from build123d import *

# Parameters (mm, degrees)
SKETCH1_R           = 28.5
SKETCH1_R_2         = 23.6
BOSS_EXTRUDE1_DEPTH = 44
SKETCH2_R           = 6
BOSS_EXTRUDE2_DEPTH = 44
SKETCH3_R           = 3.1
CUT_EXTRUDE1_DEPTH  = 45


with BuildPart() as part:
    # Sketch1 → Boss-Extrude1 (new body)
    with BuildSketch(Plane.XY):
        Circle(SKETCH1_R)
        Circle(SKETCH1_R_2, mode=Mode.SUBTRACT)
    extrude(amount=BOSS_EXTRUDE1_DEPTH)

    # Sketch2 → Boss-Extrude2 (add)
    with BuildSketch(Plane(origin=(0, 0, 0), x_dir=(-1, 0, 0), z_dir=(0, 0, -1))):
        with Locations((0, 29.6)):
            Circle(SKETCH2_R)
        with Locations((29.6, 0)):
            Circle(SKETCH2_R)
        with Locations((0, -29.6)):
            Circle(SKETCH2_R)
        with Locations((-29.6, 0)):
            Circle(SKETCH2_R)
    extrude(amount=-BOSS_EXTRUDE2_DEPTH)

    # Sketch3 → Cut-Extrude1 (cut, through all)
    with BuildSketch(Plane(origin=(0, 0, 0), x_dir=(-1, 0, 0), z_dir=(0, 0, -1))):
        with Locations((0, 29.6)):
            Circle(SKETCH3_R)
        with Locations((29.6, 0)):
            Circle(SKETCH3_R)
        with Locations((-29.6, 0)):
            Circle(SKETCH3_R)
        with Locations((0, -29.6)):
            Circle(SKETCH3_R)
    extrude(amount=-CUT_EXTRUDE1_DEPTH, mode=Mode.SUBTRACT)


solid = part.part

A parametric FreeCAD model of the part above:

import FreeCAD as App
import Part
import Sketcher

V = App.Vector
Q = App.Units.Quantity

doc = App.newDocument("Part")
body = doc.addObject("PartDesign::Body", "Body")

# Sketch on XY plane
sketch1 = body.newObject("Sketcher::SketchObject", "Sketch")
sketch1.AttachmentSupport = (doc.getObject("XY_Plane"), [""])
sketch1.MapMode = "FlatFace"
sketch1.addGeometry([
    Part.Circle(V(0, 0, 0), V(0, 0, 1), 28),
    Part.Circle(V(0, 0, 0), V(0, 0, 1), 24),
], False)
sketch1.addConstraint([
    Sketcher.Constraint("Coincident", 0, 3, -1, 1),
    Sketcher.Constraint("Coincident", 1, 3, -1, 1),
    Sketcher.Constraint("Diameter", 0, Q("57 mm")),
    Sketcher.Constraint("Diameter", 1, Q("47.2 mm")),
])
pad1 = body.newObject("PartDesign::Pad", "Pad")
pad1.Profile = sketch1
pad1.Length = 44

# Sketch on XY plane
sketch2 = body.newObject("Sketcher::SketchObject", "Sketch001")
sketch2.AttachmentSupport = (doc.getObject("XY_Plane"), [""])
sketch2.MapMode = "FlatFace"
sketch2.addGeometry([
    Part.Circle(V(0, 30, 0), V(0, 0, 1), 6),
    Part.Circle(V(-30, 0, 0), V(0, 0, 1), 6),
    Part.Circle(V(0, -30, 0), V(0, 0, 1), 6),
    Part.Circle(V(30, 0, 0), V(0, 0, 1), 6),
], False)
sketch2.addConstraint([
    Sketcher.Constraint("Equal", 0, 1),
    Sketcher.Constraint("Equal", 1, 2),
    Sketcher.Constraint("Equal", 2, 3),
    Sketcher.Constraint("Symmetric", 0, 3, 2, 3, -1, 1),
    Sketcher.Constraint("Symmetric", 1, 3, 3, 3, -1, 1),
    Sketcher.Constraint("PointOnObject", 0, 3, -2),
    Sketcher.Constraint("PointOnObject", 1, 3, -1),
    Sketcher.Constraint("Diameter", 0, Q("12 mm")),
    Sketcher.Constraint("DistanceY", -1, 1, 0, 3, Q("29.6 mm")),
    Sketcher.Constraint("DistanceX", 1, 3, -1, 1, Q("29.6 mm")),
])
pad2 = body.newObject("PartDesign::Pad", "Pad001")
pad2.Profile = sketch2
pad2.Length = 44

# Sketch on XY plane
sketch3 = body.newObject("Sketcher::SketchObject", "Sketch002")
sketch3.AttachmentSupport = (doc.getObject("XY_Plane"), [""])
sketch3.MapMode = "FlatFace"
sketch3.addGeometry([
    Part.Circle(V(0, 29.6, 0), V(0, 0, 1), 3.1),
    Part.Circle(V(-29.6, 0, 0), V(0, 0, 1), 3.1),
    Part.Circle(V(29.6, 0, 0), V(0, 0, 1), 3.1),
    Part.Circle(V(0, -29.6, 0), V(0, 0, 1), 3.1),
], False)
sketch3.addConstraint([
    Sketcher.Constraint("Equal", 0, 1),
    Sketcher.Constraint("Equal", 1, 2),
    Sketcher.Constraint("Equal", 2, 3),
    Sketcher.Constraint("Symmetric", 1, 3, 2, 3, -1, 1),
    Sketcher.Constraint("Symmetric", 0, 3, 3, 3, -1, 1),
    Sketcher.Constraint("PointOnObject", 0, 3, -2),
    Sketcher.Constraint("PointOnObject", 1, 3, -1),
    Sketcher.Constraint("Diameter", 0, Q("6.2 mm")),
    Sketcher.Constraint("DistanceY", -1, 1, 0, 3, Q("29.6 mm")),
    Sketcher.Constraint("DistanceX", 1, 3, -1, 1, Q("29.6 mm")),
])
pocket1 = body.newObject("PartDesign::Pocket", "Pocket")
pocket1.Profile = sketch3
pocket1.Type = "ThroughAll"
pocket1.Reversed = True

doc.recompute()
